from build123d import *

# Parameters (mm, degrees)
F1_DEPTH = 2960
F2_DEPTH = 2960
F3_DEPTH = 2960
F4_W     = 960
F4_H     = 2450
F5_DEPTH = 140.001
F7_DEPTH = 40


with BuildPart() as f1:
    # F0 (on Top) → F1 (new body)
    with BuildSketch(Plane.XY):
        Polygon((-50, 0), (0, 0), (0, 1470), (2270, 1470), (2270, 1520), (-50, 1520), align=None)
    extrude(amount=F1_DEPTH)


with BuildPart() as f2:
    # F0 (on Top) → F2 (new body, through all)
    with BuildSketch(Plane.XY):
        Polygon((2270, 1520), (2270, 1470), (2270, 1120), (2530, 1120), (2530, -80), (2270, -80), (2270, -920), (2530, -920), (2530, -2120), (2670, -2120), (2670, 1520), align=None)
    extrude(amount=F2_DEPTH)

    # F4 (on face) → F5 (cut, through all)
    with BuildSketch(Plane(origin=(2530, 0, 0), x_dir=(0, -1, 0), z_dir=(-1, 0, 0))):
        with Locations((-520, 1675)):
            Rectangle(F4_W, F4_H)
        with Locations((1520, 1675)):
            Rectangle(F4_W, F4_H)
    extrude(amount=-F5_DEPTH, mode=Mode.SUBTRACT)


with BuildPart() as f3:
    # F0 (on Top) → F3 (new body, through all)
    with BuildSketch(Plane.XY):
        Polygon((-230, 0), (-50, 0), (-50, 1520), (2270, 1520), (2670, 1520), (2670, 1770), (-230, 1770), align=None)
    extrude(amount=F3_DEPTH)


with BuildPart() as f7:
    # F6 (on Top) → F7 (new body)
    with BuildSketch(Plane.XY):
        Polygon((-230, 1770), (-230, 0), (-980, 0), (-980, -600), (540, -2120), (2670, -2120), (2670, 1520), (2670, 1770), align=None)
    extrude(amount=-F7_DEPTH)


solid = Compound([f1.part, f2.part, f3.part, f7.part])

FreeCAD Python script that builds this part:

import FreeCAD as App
import Part
import Sketcher
from FreeCAD import Vector


def add_polygon(sketch, points):
    """Adds a closed chain of lines whose ends are joined by coincident constraints."""
    first, n = sketch.GeometryCount, len(points)
    for a, b in zip(points, points[1:] + points[:1]):
        sketch.addGeometry(Part.LineSegment(App.Vector(*a, 0), App.Vector(*b, 0)), False)
    for i in range(n):
        sketch.addConstraint(Sketcher.Constraint("Coincident", first + i, 2, first + (i + 1) % n, 1))

doc = App.newDocument("Part")
body = doc.addObject("PartDesign::Body", "Body")

# Sketch on XY plane
sketch1 = body.newObject("Sketcher::SketchObject", "Sketch")
sketch1.AttachmentSupport = (doc.getObject("XY_Plane"), [""])
sketch1.MapMode = "FlatFace"
add_polygon(sketch1, [(-50, 0), (0, 0), (0, 1470), (2270, 1470), (2270, 1520), (-50, 1520)])  # lines 0-5
sketch1.addConstraint(Sketcher.Constraint("Horizontal", 0))
sketch1.addConstraint(Sketcher.Constraint("Vertical", 1))
sketch1.addConstraint(Sketcher.Constraint("Horizontal", 2))
sketch1.addConstraint(Sketcher.Constraint("Vertical", 3))
sketch1.addConstraint(Sketcher.Constraint("Horizontal", 4))
sketch1.addConstraint(Sketcher.Constraint("Vertical", 5))
sketch1.addConstraint(Sketcher.Constraint("Coincident", 0, 2, -1, 1))
sketch1.addConstraint(Sketcher.Constraint("Equal", 0, 3))
sketch1.addConstraint(Sketcher.Constraint("DistanceX", 0, 1, 0, 2, 50.0))
sketch1.addConstraint(Sketcher.Constraint("DistanceX", 2, 1, 2, 2, 2270.0))
sketch1.addConstraint(Sketcher.Constraint("DistanceY", 1, 1, 1, 2, 1470.0))
pad1 = body.newObject("PartDesign::Pad", "Pad")
pad1.Profile = sketch1
pad1.Length = 2960
body2 = doc.addObject("PartDesign::Body", "Body001")

# Sketch on XY plane
sketch2 = body2.newObject("Sketcher::SketchObject", "Sketch001")
sketch2.AttachmentSupport = (doc.getObject("XY_Plane001"), [""])
sketch2.MapMode = "FlatFace"
add_polygon(sketch2, [(2270, 1520), (2270, 1120), (2530, 1120), (2530, -80), (2270, -80), (2270, -920), (2530, -920), (2530, -2120), (2670, -2120), (2670, 1520)])  # lines 0-9
sketch2.addConstraint(Sketcher.Constraint("Vertical", 0))
sketch2.addConstraint(Sketcher.Constraint("Horizontal", 1))
sketch2.addConstraint(Sketcher.Constraint("Vertical", 2))
sketch2.addConstraint(Sketcher.Constraint("Horizontal", 3))
sketch2.addConstraint(Sketcher.Constraint("Vertical", 4))
sketch2.addConstraint(Sketcher.Constraint("Horizontal", 5))
sketch2.addConstraint(Sketcher.Constraint("Vertical", 6))
sketch2.addConstraint(Sketcher.Constraint("Horizontal", 7))
sketch2.addConstraint(Sketcher.Constraint("Vertical", 8))
sketch2.addConstraint(Sketcher.Constraint("Horizontal", 9))
sketch2.addConstraint(Sketcher.Constraint("Vertical", 0, 2, 3, 2))
sketch2.addConstraint(Sketcher.Constraint("Vertical", 2, 2, 5, 2))
sketch2.addConstraint(Sketcher.Constraint("Equal", 9, 0))
sketch2.addConstraint(Sketcher.Constraint("Equal", 2, 6))
sketch2.addConstraint(Sketcher.Constraint("DistanceX", 1, 1, 1, 2, 260.0))
sketch2.addConstraint(Sketcher.Constraint("DistanceX", 7, 1, 7, 2, 140.0))
sketch2.addConstraint(Sketcher.Constraint("DistanceY", 2, 2, 2, 1, 1200.0))
sketch2.addConstraint(Sketcher.Constraint("DistanceY", 4, 2, 4, 1, 840.0))
sketch2.addConstraint(Sketcher.Constraint("DistanceX", -1, 1, 0, 2, 2270.0))
sketch2.addConstraint(Sketcher.Constraint("DistanceY", -1, 1, 0, 2, 1120.0))
pad2 = body2.newObject("PartDesign::Pad", "Pad001")
pad2.Profile = sketch2
pad2.Length = 2960

# Sketch on YZ plane
sketch3 = body2.newObject("Sketcher::SketchObject", "Sketch002")
sketch3.AttachmentSupport = (doc.getObject("YZ_Plane001"), [""])
sketch3.MapMode = "FlatFace"
sketch3.AttachmentOffset = App.Placement(Vector(0, 0, 2530), App.Rotation())
add_polygon(sketch3, [(1000, 2900), (1000, 450), (40, 450), (40, 2900)])  # lines 0-3
add_polygon(sketch3, [(-1040, 2900), (-1040, 450), (-2000, 450), (-2000, 2900)])  # lines 4-7
sketch3.addConstraint(Sketcher.Constraint("Vertical", 0))
sketch3.addConstraint(Sketcher.Constraint("Horizontal", 1))
sketch3.addConstraint(Sketcher.Constraint("Vertical", 2))
sketch3.addConstraint(Sketcher.Constraint("Horizontal", 3))
sketch3.addConstraint(Sketcher.Constraint("Vertical", 4))
sketch3.addConstraint(Sketcher.Constraint("Horizontal", 5))
sketch3.addConstraint(Sketcher.Constraint("Vertical", 6))
sketch3.addConstraint(Sketcher.Constraint("Horizontal", 7))
sketch3.addConstraint(Sketcher.Constraint("Horizontal", 1, 2, 4, 2))
sketch3.addConstraint(Sketcher.Constraint("Horizontal", 3, 2, 6, 2))
sketch3.addConstraint(Sketcher.Constraint("Equal", 3, 5))
sketch3.addConstraint(Sketcher.Constraint("DistanceX", 1, 2, 1, 1, 960.0))
sketch3.addConstraint(Sketcher.Constraint("DistanceY", 0, 2, 0, 1, 2450.0))
sketch3.addConstraint(Sketcher.Constraint("DistanceX", -1, 1, 0, 2, 1000.0))
sketch3.addConstraint(Sketcher.Constraint("DistanceY", -1, 1, 0, 2, 450.0))
sketch3.addConstraint(Sketcher.Constraint("DistanceX", 4, 2, -1, 1, 1040.0))
pocket1 = body2.newObject("PartDesign::Pocket", "Pocket")
pocket1.Profile = sketch3
pocket1.Type = "ThroughAll"
pocket1.Reversed = True
body3 = doc.addObject("PartDesign::Body", "Body002")

# Sketch on XY plane
sketch4 = body3.newObject("Sketcher::SketchObject", "Sketch003")
sketch4.AttachmentSupport = (doc.getObject("XY_Plane002"), [""])
sketch4.MapMode = "FlatFace"
add_polygon(sketch4, [(-230, 0), (-50, 0), (-50, 1520), (2670, 1520), (2670, 1770), (-230, 1770)])  # lines 0-5
sketch4.addConstraint(Sketcher.Constraint("Horizontal", 0))
sketch4.addConstraint(Sketcher.Constraint("Vertical", 1))
sketch4.addConstraint(Sketcher.Constraint("Horizontal", 2))
sketch4.addConstraint(Sketcher.Constraint("Vertical", 3))
sketch4.addConstraint(Sketcher.Constraint("Horizontal", 4))
sketch4.addConstraint(Sketcher.Constraint("Vertical", 5))
sketch4.addConstraint(Sketcher.Constraint("PointOnObject", 0, 2, -1))
sketch4.addConstraint(Sketcher.Constraint("DistanceX", 0, 1, 0, 2, 180.0))
sketch4.addConstraint(Sketcher.Constraint("DistanceX", 2, 1, 2, 2, 2720.0))
sketch4.addConstraint(Sketcher.Constraint("DistanceY", 1, 1, 1, 2, 1520.0))
sketch4.addConstraint(Sketcher.Constraint("DistanceY", 3, 1, 3, 2, 250.0))
sketch4.addConstraint(Sketcher.Constraint("DistanceX", 0, 2, -1, 1, 50.0))
pad3 = body3.newObject("PartDesign::Pad", "Pad002")
pad3.Profile = sketch4
pad3.Length = 2960
body4 = doc.addObject("PartDesign::Body", "Body003")

# Sketch on XY plane
sketch5 = body4.newObject("Sketcher::SketchObject", "Sketch004")
sketch5.AttachmentSupport = (doc.getObject("XY_Plane003"), [""])
sketch5.MapMode = "FlatFace"
add_polygon(sketch5, [(-230, 1770), (-230, 0), (-980, 0), (-980, -600), (540, -2120), (2670, -2120), (2670, 1770)])  # lines 0-6
sketch5.addConstraint(Sketcher.Constraint("Vertical", 0))
sketch5.addConstraint(Sketcher.Constraint("Horizontal", 1))
sketch5.addConstraint(Sketcher.Constraint("Vertical", 2))
sketch5.addConstraint(Sketcher.Constraint("Horizontal", 4))
sketch5.addConstraint(Sketcher.Constraint("Vertical", 5))
sketch5.addConstraint(Sketcher.Constraint("Horizontal", 6))
sketch5.addConstraint(Sketcher.Constraint("PointOnObject", 0, 2, -1))
sketch5.addConstraint(Sketcher.Constraint("DistanceX", 1, 2, 1, 1, 750.0))
sketch5.addConstraint(Sketcher.Constraint("DistanceX", 4, 1, 4, 2, 2130.0))
sketch5.addConstraint(Sketcher.Constraint("DistanceX", 6, 2, 6, 1, 2900.0))
sketch5.addConstraint(Sketcher.Constraint("DistanceY", 0, 2, 0, 1, 1770.0))
sketch5.addConstraint(Sketcher.Constraint("DistanceY", 2, 2, 2, 1, 600.0))
sketch5.addConstraint(Sketcher.Constraint("DistanceY", 5, 1, 5, 2, 3890.0))
sketch5.addConstraint(Sketcher.Constraint("DistanceX", 0, 2, -1, 1, 230.0))
pad4 = body4.newObject("PartDesign::Pad", "Pad003")
pad4.Profile = sketch5
pad4.Length = 40
pad4.Reversed = True

doc.recompute()
